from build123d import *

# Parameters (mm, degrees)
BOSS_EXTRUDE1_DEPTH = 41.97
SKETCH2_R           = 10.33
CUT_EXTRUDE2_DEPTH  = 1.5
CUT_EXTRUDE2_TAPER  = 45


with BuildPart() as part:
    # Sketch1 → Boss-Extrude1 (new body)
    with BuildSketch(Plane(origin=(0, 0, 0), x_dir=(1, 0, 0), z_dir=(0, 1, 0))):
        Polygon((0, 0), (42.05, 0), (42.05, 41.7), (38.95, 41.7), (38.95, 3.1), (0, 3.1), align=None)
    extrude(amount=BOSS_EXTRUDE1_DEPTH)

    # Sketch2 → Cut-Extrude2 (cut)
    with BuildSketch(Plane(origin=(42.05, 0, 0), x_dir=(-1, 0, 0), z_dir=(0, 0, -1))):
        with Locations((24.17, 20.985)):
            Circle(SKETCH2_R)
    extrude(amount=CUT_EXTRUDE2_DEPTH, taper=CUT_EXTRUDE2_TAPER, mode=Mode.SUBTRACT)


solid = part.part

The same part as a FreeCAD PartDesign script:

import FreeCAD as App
import Part
import Sketcher
from FreeCAD import Vector
Q = App.Units.Quantity


def add_polygon(sketch, points):
    """Adds a closed chain of lines whose ends are joined by coincident constraints."""
    first, n = sketch.GeometryCount, len(points)
    for a, b in zip(points, points[1:] + points[:1]):
        sketch.addGeometry(Part.LineSegment(App.Vector(*a, 0), App.Vector(*b, 0)), False)
    for i in range(n):
        sketch.addConstraint(Sketcher.Constraint("Coincident", first + i, 2, first + (i + 1) % n, 1))

doc = App.newDocument("Part")
params = doc.addObject("Spreadsheet::Sheet", "Params")
for row, (alias, value) in enumerate([
    ("sketch1_width", "3.1 mm"),
    ("sketch1_height", "41.7 mm"),
    ("sketch1_width2", "42.05 mm"),
    ("pad1_length", "41.97 mm"),
    ("sketch2_diameter", "20.66 mm"),
    ("pocket1_length", "1.5 mm"),
    ("pocket1_taper", "-45 deg"),
], start=1):
    params.set(f"A{row}", alias)
    params.set(f"B{row}", "=" + value)
    params.setAlias(f"B{row}", alias)

body = doc.addObject("PartDesign::Body", "Body")

sketch1 = doc.addObject("Sketcher::SketchObject", "Sketch")
body.addObject(sketch1)
sketch1.AttachmentSupport = (doc.XZ_Plane, [""])
sketch1.MapMode = "FlatFace"
add_polygon(sketch1, [(0, 0), (42.05, 0), (42.05, -41.7), (38.95, -41.7), (38.95, -3.1), (0, -3.1)])
sketch1.addConstraint(Sketcher.Constraint("Horizontal", 0))
sketch1.addConstraint(Sketcher.Constraint("Vertical", 1))
sketch1.addConstraint(Sketcher.Constraint("Horizontal", 2))
sketch1.addConstraint(Sketcher.Constraint("Vertical", 3))
sketch1.addConstraint(Sketcher.Constraint("Horizontal", 4))
sketch1.addConstraint(Sketcher.Constraint("Vertical", 5))
sketch1.addConstraint(Sketcher.Constraint("Coincident", 5, 2, -1, 1))
sketch1.addConstraint(Sketcher.Constraint("Equal", 2, 5))
sketch1.addConstraint(Sketcher.Constraint("DistanceX", 2, 2, 2, 1, Q("3.1 mm")))
sketch1.addConstraint(Sketcher.Constraint("DistanceY", 1, 2, 1, 1, Q("41.7 mm")))
sketch1.addConstraint(Sketcher.Constraint("DistanceX", 0, 1, 0, 2, Q("42.05 mm")))
sketch1.setExpression("Constraints[14]", "Params.sketch1_width")
sketch1.setExpression("Constraints[15]", "Params.sketch1_height")
sketch1.setExpression("Constraints[16]", "Params.sketch1_width2")
pad1 = doc.addObject("PartDesign::Pad", "Pad")
body.addObject(pad1)
pad1.Profile = sketch1
pad1.setExpression("Length", "Params.pad1_length")
pad1.Reversed = True

sketch2 = doc.addObject("Sketcher::SketchObject", "Sketch001")
body.addObject(sketch2)
sketch2.AttachmentSupport = (doc.XY_Plane, [""])
sketch2.MapMode = "FlatFace"
sketch2.addGeometry(Part.Circle(Vector(17.88, 20.985, 0), Vector(0, 0, 1), 10.33), False)
sketch2.addConstraint(Sketcher.Constraint("Diameter", 0, Q("20.66 mm")))
sketch2.addConstraint(Sketcher.Constraint("DistanceX", -1, 1, 0, 3, Q("17.88 mm")))
sketch2.addConstraint(Sketcher.Constraint("DistanceY", -1, 1, 0, 3, Q("20.985 mm")))
sketch2.setExpression("Constraints[0]", "Params.sketch2_diameter")
pocket1 = doc.addObject("PartDesign::Pocket", "Pocket")
body.addObject(pocket1)
pocket1.Profile = sketch2
pocket1.setExpression("Length", "Params.pocket1_length")
pocket1.setExpression("TaperAngle", "Params.pocket1_taper")

doc.recompute()
